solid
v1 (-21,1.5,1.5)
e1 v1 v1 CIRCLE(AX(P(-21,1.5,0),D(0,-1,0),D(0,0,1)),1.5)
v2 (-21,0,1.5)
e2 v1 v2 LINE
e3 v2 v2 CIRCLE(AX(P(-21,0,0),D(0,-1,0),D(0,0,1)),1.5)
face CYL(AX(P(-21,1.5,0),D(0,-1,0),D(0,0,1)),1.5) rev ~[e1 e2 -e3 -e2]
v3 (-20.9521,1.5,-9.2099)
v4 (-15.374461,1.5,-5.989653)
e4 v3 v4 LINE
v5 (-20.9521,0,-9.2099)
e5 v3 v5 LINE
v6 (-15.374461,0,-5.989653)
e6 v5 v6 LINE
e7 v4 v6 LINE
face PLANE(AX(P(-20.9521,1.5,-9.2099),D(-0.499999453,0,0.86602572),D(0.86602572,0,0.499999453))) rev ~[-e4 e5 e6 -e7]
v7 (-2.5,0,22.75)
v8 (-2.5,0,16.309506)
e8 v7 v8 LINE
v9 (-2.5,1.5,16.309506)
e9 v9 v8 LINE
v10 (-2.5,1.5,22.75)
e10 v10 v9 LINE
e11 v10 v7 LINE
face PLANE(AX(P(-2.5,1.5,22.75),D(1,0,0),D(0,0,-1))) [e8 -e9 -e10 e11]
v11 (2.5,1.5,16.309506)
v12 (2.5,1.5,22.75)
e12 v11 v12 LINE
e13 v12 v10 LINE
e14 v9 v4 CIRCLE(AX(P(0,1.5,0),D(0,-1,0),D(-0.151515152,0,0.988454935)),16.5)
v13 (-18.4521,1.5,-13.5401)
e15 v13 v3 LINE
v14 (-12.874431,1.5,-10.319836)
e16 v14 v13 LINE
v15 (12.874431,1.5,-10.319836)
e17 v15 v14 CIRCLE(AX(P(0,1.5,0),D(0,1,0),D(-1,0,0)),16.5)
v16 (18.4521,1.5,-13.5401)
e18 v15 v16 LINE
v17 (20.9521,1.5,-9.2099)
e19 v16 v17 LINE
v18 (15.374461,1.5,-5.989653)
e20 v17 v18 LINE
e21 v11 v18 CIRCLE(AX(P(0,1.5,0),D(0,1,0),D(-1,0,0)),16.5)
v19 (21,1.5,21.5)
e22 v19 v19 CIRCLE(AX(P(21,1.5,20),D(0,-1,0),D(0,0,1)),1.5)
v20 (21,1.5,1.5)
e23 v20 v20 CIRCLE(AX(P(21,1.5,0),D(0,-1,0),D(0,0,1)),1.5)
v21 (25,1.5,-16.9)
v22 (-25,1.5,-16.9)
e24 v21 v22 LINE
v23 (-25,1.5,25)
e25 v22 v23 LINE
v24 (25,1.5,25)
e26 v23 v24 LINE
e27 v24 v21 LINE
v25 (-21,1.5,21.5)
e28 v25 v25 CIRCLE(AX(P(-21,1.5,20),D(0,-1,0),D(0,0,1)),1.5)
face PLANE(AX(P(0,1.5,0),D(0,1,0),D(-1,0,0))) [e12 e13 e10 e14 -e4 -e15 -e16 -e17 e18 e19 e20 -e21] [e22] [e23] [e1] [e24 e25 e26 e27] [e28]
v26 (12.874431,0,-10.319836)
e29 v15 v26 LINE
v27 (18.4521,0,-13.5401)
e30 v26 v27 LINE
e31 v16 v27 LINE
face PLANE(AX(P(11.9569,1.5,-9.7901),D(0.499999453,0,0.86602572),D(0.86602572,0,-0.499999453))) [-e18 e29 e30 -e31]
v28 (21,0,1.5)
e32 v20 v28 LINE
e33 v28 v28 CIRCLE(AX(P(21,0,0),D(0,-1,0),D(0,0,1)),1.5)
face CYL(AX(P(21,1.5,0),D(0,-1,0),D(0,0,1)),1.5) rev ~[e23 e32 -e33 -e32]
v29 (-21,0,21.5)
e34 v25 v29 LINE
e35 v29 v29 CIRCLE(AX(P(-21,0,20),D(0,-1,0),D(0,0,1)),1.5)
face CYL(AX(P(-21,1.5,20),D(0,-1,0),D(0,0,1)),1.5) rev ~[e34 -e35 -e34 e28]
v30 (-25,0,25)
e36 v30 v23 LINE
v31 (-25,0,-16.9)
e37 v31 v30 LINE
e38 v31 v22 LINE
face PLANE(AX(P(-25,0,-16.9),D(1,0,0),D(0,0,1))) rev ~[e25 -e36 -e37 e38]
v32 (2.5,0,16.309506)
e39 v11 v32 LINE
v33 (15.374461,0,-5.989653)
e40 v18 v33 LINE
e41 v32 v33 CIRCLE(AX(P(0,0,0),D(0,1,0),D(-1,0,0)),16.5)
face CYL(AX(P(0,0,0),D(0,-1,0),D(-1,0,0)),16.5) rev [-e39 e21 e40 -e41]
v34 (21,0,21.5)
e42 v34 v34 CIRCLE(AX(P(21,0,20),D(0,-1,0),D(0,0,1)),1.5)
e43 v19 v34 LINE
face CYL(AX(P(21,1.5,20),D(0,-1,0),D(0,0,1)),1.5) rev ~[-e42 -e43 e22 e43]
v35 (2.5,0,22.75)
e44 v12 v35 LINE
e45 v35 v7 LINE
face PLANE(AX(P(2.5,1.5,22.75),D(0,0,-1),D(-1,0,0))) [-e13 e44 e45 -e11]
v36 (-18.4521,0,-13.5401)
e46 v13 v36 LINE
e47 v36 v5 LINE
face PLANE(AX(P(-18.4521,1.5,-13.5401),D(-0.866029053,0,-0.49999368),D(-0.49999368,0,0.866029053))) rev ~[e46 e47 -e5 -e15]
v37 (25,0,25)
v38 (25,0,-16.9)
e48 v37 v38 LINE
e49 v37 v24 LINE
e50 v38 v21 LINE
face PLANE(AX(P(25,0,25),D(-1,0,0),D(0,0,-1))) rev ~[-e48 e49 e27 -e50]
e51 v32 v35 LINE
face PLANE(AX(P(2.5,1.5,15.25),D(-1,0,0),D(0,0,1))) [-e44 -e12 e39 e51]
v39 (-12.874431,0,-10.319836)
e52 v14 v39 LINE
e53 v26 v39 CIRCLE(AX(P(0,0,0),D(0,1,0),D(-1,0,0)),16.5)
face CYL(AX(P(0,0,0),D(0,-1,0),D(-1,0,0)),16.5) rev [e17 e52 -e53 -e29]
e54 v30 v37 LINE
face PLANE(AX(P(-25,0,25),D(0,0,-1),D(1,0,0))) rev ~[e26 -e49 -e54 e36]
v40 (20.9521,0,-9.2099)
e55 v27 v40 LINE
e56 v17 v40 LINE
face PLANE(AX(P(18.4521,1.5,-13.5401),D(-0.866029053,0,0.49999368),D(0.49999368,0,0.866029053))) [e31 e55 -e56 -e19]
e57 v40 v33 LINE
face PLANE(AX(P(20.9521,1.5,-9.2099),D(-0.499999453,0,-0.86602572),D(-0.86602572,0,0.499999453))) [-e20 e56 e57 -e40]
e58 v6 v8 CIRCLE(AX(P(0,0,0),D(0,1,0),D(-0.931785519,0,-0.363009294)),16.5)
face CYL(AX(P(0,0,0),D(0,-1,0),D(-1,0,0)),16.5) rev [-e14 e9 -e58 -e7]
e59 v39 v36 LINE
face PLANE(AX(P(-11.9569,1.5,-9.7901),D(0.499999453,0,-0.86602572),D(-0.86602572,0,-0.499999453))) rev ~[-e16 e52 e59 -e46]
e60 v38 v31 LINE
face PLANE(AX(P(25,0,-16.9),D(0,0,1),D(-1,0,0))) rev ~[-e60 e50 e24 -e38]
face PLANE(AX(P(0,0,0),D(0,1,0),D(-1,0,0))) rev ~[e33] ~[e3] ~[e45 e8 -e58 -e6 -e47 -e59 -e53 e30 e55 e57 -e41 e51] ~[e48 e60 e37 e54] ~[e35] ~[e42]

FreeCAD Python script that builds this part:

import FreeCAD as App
import Part
import Sketcher
Q = App.Units.Quantity

doc = App.newDocument("Part")
params = doc.addObject("Spreadsheet::Sheet", "Params")
for row, (alias, value) in enumerate([
    ("sketch1_diameter", "33 mm"),
    ("sketch1_width", "50 mm"),
    ("pad1_length", "1.5 mm"),
    ("sketch2_width", "5 mm"),
    ("sketch2_length", "5 mm"),
    ("sketch2_height", "7.5 mm"),
    ("sketch2_length2", "7.5 mm"),
    ("pocket1_length", "1.5 mm"),
    ("sketch3_diameter", "3 mm"),
    ("hole_diameter", "3 mm"),
], start=1):
    params.set(f"A{row}", alias)
    params.set(f"B{row}", "=" + value)
    params.setAlias(f"B{row}", alias)

body = doc.addObject("PartDesign::Body", "Body")

# Sketch on XZ plane
sketch1 = doc.addObject("Sketcher::SketchObject", "Sketch")
body.addObject(sketch1)
sketch1.AttachmentSupport = (doc.XZ_Plane, [""])
sketch1.MapMode = "FlatFace"
sketch1.addGeometry(Part.LineSegment(App.Vector(-25, -16.9, 0), App.Vector(-25, 25, 0)), False)
sketch1.addGeometry(Part.LineSegment(App.Vector(-25, 25, 0), App.Vector(25, 25, 0)), False)
sketch1.addGeometry(Part.LineSegment(App.Vector(25, 25, 0), App.Vector(25, -16.9, 0)), False)
sketch1.addGeometry(Part.LineSegment(App.Vector(25, -16.9, 0), App.Vector(-25, -16.9, 0)), False)
sketch1.addGeometry(Part.Circle(App.Vector(0, 0, 0), App.Vector(0, 0, 1), 16.5), False)
sketch1.addConstraint(Sketcher.Constraint("Coincident", 0, 2, 1, 1))
sketch1.addConstraint(Sketcher.Constraint("Coincident", 1, 2, 2, 1))
sketch1.addConstraint(Sketcher.Constraint("Coincident", 2, 2, 3, 1))
sketch1.addConstraint(Sketcher.Constraint("Coincident", 3, 2, 0, 1))
sketch1.addConstraint(Sketcher.Constraint("Vertical", 0))
sketch1.addConstraint(Sketcher.Constraint("Horizontal", 1))
sketch1.addConstraint(Sketcher.Constraint("Vertical", 2))
sketch1.addConstraint(Sketcher.Constraint("Horizontal", 3))
sketch1.addConstraint(Sketcher.Constraint("Coincident", 4, 3, -1, 1))
sketch1.addConstraint(Sketcher.Constraint("Diameter", 4, 33.0))
sketch1.addConstraint(Sketcher.Constraint("DistanceX", 1, 1, 1, 2, 50.0))
sketch1.addConstraint(Sketcher.Constraint("DistanceX", 0, 2, -1, 1, 25.0))
sketch1.addConstraint(Sketcher.Constraint("DistanceY", -1, 1, 0, 2, 25.0))
sketch1.addConstraint(Sketcher.Constraint("DistanceY", 2, 2, -1, 1, 16.9))
sketch1.setExpression("Constraints[9]", "Params.sketch1_diameter")
sketch1.setExpression("Constraints[10]", "Params.sketch1_width")
pad1 = doc.addObject("PartDesign::Pad", "Pad")
body.addObject(pad1)
pad1.Profile = sketch1
pad1.setExpression("Length", "Params.pad1_length")
pad1.Reversed = True

# Sketch on XZ plane
sketch2 = doc.addObject("Sketcher::SketchObject", "Sketch001")
body.addObject(sketch2)
sketch2.AttachmentSupport = (doc.XZ_Plane, [""])
sketch2.MapMode = "FlatFace"
sketch2.AttachmentOffset = App.Placement(App.Vector(0, 0, -1.5), App.Rotation())
sketch2.addGeometry(Part.LineSegment(App.Vector(-14.4569, -5.4599, 0), App.Vector(-11.9569, -9.7901, 0)), False)
sketch2.addGeometry(Part.LineSegment(App.Vector(-11.9569, -9.7901, 0), App.Vector(-18.4521, -13.5401, 0)), False)
sketch2.addGeometry(Part.LineSegment(App.Vector(-18.4521, -13.5401, 0), App.Vector(-20.9521, -9.2099, 0)), False)
sketch2.addGeometry(Part.LineSegment(App.Vector(-20.9521, -9.2099, 0), App.Vector(-14.4569, -5.4599, 0)), False)
sketch2.addGeometry(Part.LineSegment(App.Vector(14.4569, -5.4599, 0), App.Vector(20.9521, -9.2099, 0)), False)
sketch2.addGeometry(Part.LineSegment(App.Vector(20.9521, -9.2099, 0), App.Vector(18.4521, -13.5401, 0)), False)
sketch2.addGeometry(Part.LineSegment(App.Vector(18.4521, -13.5401, 0), App.Vector(11.9569, -9.7901, 0)), False)
sketch2.addGeometry(Part.LineSegment(App.Vector(11.9569, -9.7901, 0), App.Vector(14.4569, -5.4599, 0)), False)
sketch2.addGeometry(Part.LineSegment(App.Vector(-2.5, 15.25, 0), App.Vector(-2.5, 22.75, 0)), False)
sketch2.addGeometry(Part.LineSegment(App.Vector(-2.5, 22.75, 0), App.Vector(2.5, 22.75, 0)), False)
sketch2.addGeometry(Part.LineSegment(App.Vector(2.5, 22.75, 0), App.Vector(2.5, 15.25, 0)), False)
sketch2.addGeometry(Part.LineSegment(App.Vector(2.5, 15.25, 0), App.Vector(-2.5, 15.25, 0)), False)
sketch2.addConstraint(Sketcher.Constraint("Coincident", 0, 2, 1, 1))
sketch2.addConstraint(Sketcher.Constraint("Coincident", 1, 2, 2, 1))
sketch2.addConstraint(Sketcher.Constraint("Coincident", 2, 2, 3, 1))
sketch2.addConstraint(Sketcher.Constraint("Coincident", 3, 2, 0, 1))
sketch2.addConstraint(Sketcher.Constraint("Coincident", 4, 2, 5, 1))
sketch2.addConstraint(Sketcher.Constraint("Coincident", 5, 2, 6, 1))
sketch2.addConstraint(Sketcher.Constraint("Coincident", 6, 2, 7, 1))
sketch2.addConstraint(Sketcher.Constraint("Coincident", 7, 2, 4, 1))
sketch2.addConstraint(Sketcher.Constraint("Coincident", 8, 2, 9, 1))
sketch2.addConstraint(Sketcher.Constraint("Coincident", 9, 2, 10, 1))
sketch2.addConstraint(Sketcher.Constraint("Coincident", 10, 2, 11, 1))
sketch2.addConstraint(Sketcher.Constraint("Coincident", 11, 2, 8, 1))
sketch2.addConstraint(Sketcher.Constraint("Vertical", 8))
sketch2.addConstraint(Sketcher.Constraint("Horizontal", 9))
sketch2.addConstraint(Sketcher.Constraint("Vertical", 10))
sketch2.addConstraint(Sketcher.Constraint("Horizontal", 11))
sketch2.addConstraint(Sketcher.Constraint("Symmetric", 2, 2, 4, 2, -2))
sketch2.addConstraint(Sketcher.Constraint("Symmetric", 1, 2, 5, 2, -2))
sketch2.addConstraint(Sketcher.Constraint("Symmetric", 0, 2, 6, 2, -2))
sketch2.addConstraint(Sketcher.Constraint("Symmetric", 3, 2, 7, 2, -2))
sketch2.addConstraint(Sketcher.Constraint("Perpendicular", 0, 1))
sketch2.addConstraint(Sketcher.Constraint("Perpendicular", 1, 2))
sketch2.addConstraint(Sketcher.Constraint("Perpendicular", 2, 3))
sketch2.addConstraint(Sketcher.Constraint("DistanceX", 9, 1, 9, 2, 5.0))
sketch2.addConstraint(Sketcher.Constraint("Angle", 2, Q("119.9996 deg")))
sketch2.addConstraint(Sketcher.Constraint("Distance", 0, 5.0))
sketch2.addConstraint(Sketcher.Constraint("DistanceY", 8, 1, 8, 2, 7.5))
sketch2.addConstraint(Sketcher.Constraint("Distance", 1, 7.5))
sketch2.addConstraint(Sketcher.Constraint("DistanceX", 8, 2, -1, 1, 2.5))
sketch2.addConstraint(Sketcher.Constraint("DistanceY", 0, 2, -1, 1, 9.79))
sketch2.addConstraint(Sketcher.Constraint("DistanceY", -1, 1, 8, 2, 22.75))
sketch2.addConstraint(Sketcher.Constraint("DistanceX", 0, 2, -1, 1, 11.957))
sketch2.setExpression("Constraints[23]", "Params.sketch2_width")
sketch2.setExpression("Constraints[25]", "Params.sketch2_length")
sketch2.setExpression("Constraints[26]", "Params.sketch2_height")
sketch2.setExpression("Constraints[27]", "Params.sketch2_length2")
pocket1 = doc.addObject("PartDesign::Pocket", "Pocket")
body.addObject(pocket1)
pocket1.Profile = sketch2
pocket1.setExpression("Length", "Params.pocket1_length")
pocket1.Reversed = True

# Sketch on XZ plane
sketch3 = doc.addObject("Sketcher::SketchObject", "Sketch002")
body.addObject(sketch3)
sketch3.AttachmentSupport = (doc.XZ_Plane, [""])
sketch3.MapMode = "FlatFace"
sketch3.AttachmentOffset = App.Placement(App.Vector(0, 0, -1.5), App.Rotation())
sketch3.addGeometry(Part.Circle(App.Vector(-21, 20, 0), App.Vector(0, 0, 1), 1.5), False)
sketch3.addGeometry(Part.Circle(App.Vector(-21, 0, 0), App.Vector(0, 0, 1), 1.5), False)
sketch3.addGeometry(Part.Circle(App.Vector(21, 0, 0), App.Vector(0, 0, 1), 1.5), False)
sketch3.addGeometry(Part.Circle(App.Vector(21, 20, 0), App.Vector(0, 0, 1), 1.5), False)
sketch3.addConstraint(Sketcher.Constraint("Equal", 0, 1))
sketch3.addConstraint(Sketcher.Constraint("Equal", 1, 2))
sketch3.addConstraint(Sketcher.Constraint("Equal", 2, 3))
sketch3.addConstraint(Sketcher.Constraint("Symmetric", 1, 3, 2, 3, -1, 1))
sketch3.addConstraint(Sketcher.Constraint("Symmetric", 0, 3, 3, 3, -2))
sketch3.addConstraint(Sketcher.Constraint("PointOnObject", 1, 3, -1))
sketch3.addConstraint(Sketcher.Constraint("Vertical", 0, 3, 1, 3))
sketch3.addConstraint(Sketcher.Constraint("Diameter", 0, 3.0))
sketch3.addConstraint(Sketcher.Constraint("DistanceX", 0, 3, -1, 1, 21.0))
sketch3.addConstraint(Sketcher.Constraint("DistanceY", -1, 1, 0, 3, 20.0))
sketch3.setExpression("Constraints[7]", "Params.sketch3_diameter")
doc.recompute()
hole = doc.addObject("PartDesign::Hole", "Hole")
body.addObject(hole)
hole.Profile = sketch3
hole.ThreadType = "None"
hole.setExpression("Diameter", "Params.hole_diameter")
hole.DepthType = "ThroughAll"
hole.Reversed = True

doc.recompute()
